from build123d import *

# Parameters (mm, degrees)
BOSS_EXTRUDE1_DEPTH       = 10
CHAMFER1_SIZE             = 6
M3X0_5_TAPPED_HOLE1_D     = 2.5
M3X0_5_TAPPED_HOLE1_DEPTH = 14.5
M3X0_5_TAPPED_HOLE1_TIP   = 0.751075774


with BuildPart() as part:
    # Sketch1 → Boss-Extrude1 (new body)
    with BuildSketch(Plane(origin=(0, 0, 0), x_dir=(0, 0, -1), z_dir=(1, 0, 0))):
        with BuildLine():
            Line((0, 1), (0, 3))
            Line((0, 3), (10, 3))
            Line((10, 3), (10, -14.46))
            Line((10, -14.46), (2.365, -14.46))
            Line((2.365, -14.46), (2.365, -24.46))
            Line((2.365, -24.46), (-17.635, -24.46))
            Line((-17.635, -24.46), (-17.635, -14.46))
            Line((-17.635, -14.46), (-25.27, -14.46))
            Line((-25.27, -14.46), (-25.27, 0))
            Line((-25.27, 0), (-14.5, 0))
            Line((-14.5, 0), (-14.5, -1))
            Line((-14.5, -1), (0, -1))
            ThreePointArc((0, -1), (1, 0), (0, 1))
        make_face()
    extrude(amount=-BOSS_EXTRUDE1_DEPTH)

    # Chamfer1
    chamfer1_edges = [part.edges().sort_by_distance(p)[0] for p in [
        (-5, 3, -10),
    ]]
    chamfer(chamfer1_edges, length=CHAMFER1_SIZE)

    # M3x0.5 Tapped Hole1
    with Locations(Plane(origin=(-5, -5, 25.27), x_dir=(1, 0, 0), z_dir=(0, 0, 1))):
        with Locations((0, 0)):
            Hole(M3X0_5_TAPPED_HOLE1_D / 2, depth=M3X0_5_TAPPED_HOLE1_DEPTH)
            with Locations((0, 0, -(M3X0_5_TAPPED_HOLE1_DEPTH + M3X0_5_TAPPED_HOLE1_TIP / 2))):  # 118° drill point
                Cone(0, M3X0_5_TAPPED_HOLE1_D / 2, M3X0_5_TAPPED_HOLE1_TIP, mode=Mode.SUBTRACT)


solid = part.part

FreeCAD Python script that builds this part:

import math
import FreeCAD as App
import Part
import Sketcher
Q = App.Units.Quantity


def edges_at(feature, points):
    """Names of the edges that pass closest to the given points."""
    edges = feature.Shape.Edges
    near = lambda p: min(range(len(edges)), key=lambda i: edges[i].distToShape(Part.Vertex(*p))[0])
    return sorted({f"Edge{near(p) + 1}" for p in points})

doc = App.newDocument("Part")
params = doc.addObject("Spreadsheet::Sheet", "Params")
for row, (alias, value) in enumerate([
    ("sketch1_radius", "1 mm"),
    ("sketch1_width", "2 mm"),
    ("sketch1_width2", "10 mm"),
    ("sketch1_height", "20 mm"),
    ("sketch1_height2", "14.5 mm"),
    ("pad1_length", "10 mm"),
    ("chamfer_size", "6 mm"),
    ("sketch2_diameter", "2.5 mm"),
    ("hole_diameter", "2.5 mm"),
    ("hole_depth", "14.5 mm"),
], start=1):
    params.set(f"A{row}", alias)
    params.set(f"B{row}", "=" + value)
    params.setAlias(f"B{row}", alias)

body = doc.addObject("PartDesign::Body", "Body")

# Sketch on YZ plane
sketch1 = body.newObject("Sketcher::SketchObject", "Sketch")
sketch1.AttachmentSupport = (doc.getObject("YZ_Plane"), [""])
sketch1.MapMode = "FlatFace"
sketch1.addGeometry([
    Part.LineSegment(App.Vector(3, 0, 0), App.Vector(1, 0, 0)),  # 0
    Part.ArcOfCircle(Part.Circle(App.Vector(0, 0, 0), App.Vector(0, 0, 1), 1), math.radians(180), math.radians(360)),  # 1
    Part.LineSegment(App.Vector(-1, 0, 0), App.Vector(-1, 14.5, 0)),  # 2
    Part.LineSegment(App.Vector(-1, 14.5, 0), App.Vector(0, 14.5, 0)),  # 3
    Part.LineSegment(App.Vector(0, 14.5, 0), App.Vector(0, 25.3, 0)),  # 4
    Part.LineSegment(App.Vector(0, 25.3, 0), App.Vector(-14.5, 25.3, 0)),  # 5
    Part.LineSegment(App.Vector(-14.5, 25.3, 0), App.Vector(-14.5, 17.6, 0)),  # 6
    Part.LineSegment(App.Vector(-14.5, 17.6, 0), App.Vector(-24.5, 17.6, 0)),  # 7
    Part.LineSegment(App.Vector(-24.5, 17.6, 0), App.Vector(-24.5, -2.4, 0)),  # 8
    Part.LineSegment(App.Vector(-24.5, -2.4, 0), App.Vector(-14.5, -2.4, 0)),  # 9
    Part.LineSegment(App.Vector(-14.5, -2.4, 0), App.Vector(-14.5, -10, 0)),  # 10
    Part.LineSegment(App.Vector(-14.5, -10, 0), App.Vector(3, -10, 0)),  # 11
    Part.LineSegment(App.Vector(3, -10, 0), App.Vector(3, 0, 0)),  # 12
], False)
sketch1.addConstraint([
    Sketcher.Constraint("Coincident", 0, 2, 1, 2),
    Sketcher.Constraint("Tangent", 1, 1, 2, 1),
    Sketcher.Constraint("Coincident", 2, 2, 3, 1),
    Sketcher.Constraint("Coincident", 3, 2, 4, 1),
    Sketcher.Constraint("Coincident", 4, 2, 5, 1),
    Sketcher.Constraint("Coincident", 5, 2, 6, 1),
    Sketcher.Constraint("Coincident", 6, 2, 7, 1),
    Sketcher.Constraint("Coincident", 7, 2, 8, 1),
    Sketcher.Constraint("Coincident", 8, 2, 9, 1),
    Sketcher.Constraint("Coincident", 9, 2, 10, 1),
    Sketcher.Constraint("Coincident", 10, 2, 11, 1),
    Sketcher.Constraint("Coincident", 11, 2, 12, 1),
    Sketcher.Constraint("Coincident", 12, 2, 0, 1),
    Sketcher.Constraint("Horizontal", 0),
    Sketcher.Constraint("Vertical", 2),
    Sketcher.Constraint("Horizontal", 3),
    Sketcher.Constraint("Vertical", 4),
    Sketcher.Constraint("Horizontal", 5),
    Sketcher.Constraint("Vertical", 6),
    Sketcher.Constraint("Horizontal", 7),
    Sketcher.Constraint("Vertical", 8),
    Sketcher.Constraint("Horizontal", 9),
    Sketcher.Constraint("Vertical", 10),
    Sketcher.Constraint("Horizontal", 11),
    Sketcher.Constraint("Vertical", 12),
    Sketcher.Constraint("Coincident", 1, 3, -1, 1),
    Sketcher.Constraint("PointOnObject", 0, 2, -1),
    Sketcher.Constraint("PointOnObject", 3, 2, -2),
    Sketcher.Constraint("Vertical", 6, 2, 9, 2),
    Sketcher.Constraint("Equal", 6, 10),
    Sketcher.Constraint("Equal", 9, 12),
    Sketcher.Constraint("Radius", 1, Q("1 mm")),
    Sketcher.Constraint("DistanceX", 0, 2, 0, 1, Q("2 mm")),
    Sketcher.Constraint("DistanceX", 7, 2, 7, 1, Q("10 mm")),
    Sketcher.Constraint("DistanceY", 8, 2, 8, 1, Q("20 mm")),
    Sketcher.Constraint("DistanceY", 2, 1, 2, 2, Q("14.5 mm")),
    Sketcher.Constraint("DistanceX", 5, 2, 5, 1, Q("14.46 mm")),
    Sketcher.Constraint("DistanceY", 4, 1, 4, 2, Q("10.77 mm")),
])
sketch1.setExpression("Constraints[31]", "Params.sketch1_radius")
sketch1.setExpression("Constraints[32]", "Params.sketch1_width")
sketch1.setExpression("Constraints[33]", "Params.sketch1_width2")
sketch1.setExpression("Constraints[34]", "Params.sketch1_height")
sketch1.setExpression("Constraints[35]", "Params.sketch1_height2")
pad1 = body.newObject("PartDesign::Pad", "Pad")
pad1.Profile = sketch1
pad1.setExpression("Length", "Params.pad1_length")
pad1.Reversed = True
doc.recompute()

chamfer = body.newObject("PartDesign::Chamfer", "Chamfer")
chamfer.Base = (pad1, edges_at(pad1, [(-5, 3, -10)]))
chamfer.setExpression("Size", "Params.chamfer_size")

# Sketch on XY plane
sketch2 = body.newObject("Sketcher::SketchObject", "Sketch001")
sketch2.AttachmentSupport = (doc.getObject("XY_Plane"), [""])
sketch2.MapMode = "FlatFace"
sketch2.AttachmentOffset = App.Placement(App.Vector(0, 0, 25.27), App.Rotation())
sketch2.addGeometry(Part.Circle(App.Vector(-5, -5, 0), App.Vector(0, 0, 1), 1.2), False)
sketch2.addConstraint([
    Sketcher.Constraint("Diameter", 0, Q("2.5 mm")),
    Sketcher.Constraint("DistanceX", 0, 3, -1, 1, Q("5 mm")),
    Sketcher.Constraint("DistanceY", 0, 3, -1, 1, Q("5 mm")),
])
sketch2.setExpression("Constraints[0]", "Params.sketch2_diameter")
doc.recompute()
hole = body.newObject("PartDesign::Hole", "Hole")
hole.Profile = sketch2
hole.ThreadType = "None"
hole.setExpression("Diameter", "Params.hole_diameter")
hole.DepthType = "Dimension"
hole.setExpression("Depth", "Params.hole_depth")
hole.DrillPoint = "Angled"
hole.DrillPointAngle = 118

doc.recompute()
